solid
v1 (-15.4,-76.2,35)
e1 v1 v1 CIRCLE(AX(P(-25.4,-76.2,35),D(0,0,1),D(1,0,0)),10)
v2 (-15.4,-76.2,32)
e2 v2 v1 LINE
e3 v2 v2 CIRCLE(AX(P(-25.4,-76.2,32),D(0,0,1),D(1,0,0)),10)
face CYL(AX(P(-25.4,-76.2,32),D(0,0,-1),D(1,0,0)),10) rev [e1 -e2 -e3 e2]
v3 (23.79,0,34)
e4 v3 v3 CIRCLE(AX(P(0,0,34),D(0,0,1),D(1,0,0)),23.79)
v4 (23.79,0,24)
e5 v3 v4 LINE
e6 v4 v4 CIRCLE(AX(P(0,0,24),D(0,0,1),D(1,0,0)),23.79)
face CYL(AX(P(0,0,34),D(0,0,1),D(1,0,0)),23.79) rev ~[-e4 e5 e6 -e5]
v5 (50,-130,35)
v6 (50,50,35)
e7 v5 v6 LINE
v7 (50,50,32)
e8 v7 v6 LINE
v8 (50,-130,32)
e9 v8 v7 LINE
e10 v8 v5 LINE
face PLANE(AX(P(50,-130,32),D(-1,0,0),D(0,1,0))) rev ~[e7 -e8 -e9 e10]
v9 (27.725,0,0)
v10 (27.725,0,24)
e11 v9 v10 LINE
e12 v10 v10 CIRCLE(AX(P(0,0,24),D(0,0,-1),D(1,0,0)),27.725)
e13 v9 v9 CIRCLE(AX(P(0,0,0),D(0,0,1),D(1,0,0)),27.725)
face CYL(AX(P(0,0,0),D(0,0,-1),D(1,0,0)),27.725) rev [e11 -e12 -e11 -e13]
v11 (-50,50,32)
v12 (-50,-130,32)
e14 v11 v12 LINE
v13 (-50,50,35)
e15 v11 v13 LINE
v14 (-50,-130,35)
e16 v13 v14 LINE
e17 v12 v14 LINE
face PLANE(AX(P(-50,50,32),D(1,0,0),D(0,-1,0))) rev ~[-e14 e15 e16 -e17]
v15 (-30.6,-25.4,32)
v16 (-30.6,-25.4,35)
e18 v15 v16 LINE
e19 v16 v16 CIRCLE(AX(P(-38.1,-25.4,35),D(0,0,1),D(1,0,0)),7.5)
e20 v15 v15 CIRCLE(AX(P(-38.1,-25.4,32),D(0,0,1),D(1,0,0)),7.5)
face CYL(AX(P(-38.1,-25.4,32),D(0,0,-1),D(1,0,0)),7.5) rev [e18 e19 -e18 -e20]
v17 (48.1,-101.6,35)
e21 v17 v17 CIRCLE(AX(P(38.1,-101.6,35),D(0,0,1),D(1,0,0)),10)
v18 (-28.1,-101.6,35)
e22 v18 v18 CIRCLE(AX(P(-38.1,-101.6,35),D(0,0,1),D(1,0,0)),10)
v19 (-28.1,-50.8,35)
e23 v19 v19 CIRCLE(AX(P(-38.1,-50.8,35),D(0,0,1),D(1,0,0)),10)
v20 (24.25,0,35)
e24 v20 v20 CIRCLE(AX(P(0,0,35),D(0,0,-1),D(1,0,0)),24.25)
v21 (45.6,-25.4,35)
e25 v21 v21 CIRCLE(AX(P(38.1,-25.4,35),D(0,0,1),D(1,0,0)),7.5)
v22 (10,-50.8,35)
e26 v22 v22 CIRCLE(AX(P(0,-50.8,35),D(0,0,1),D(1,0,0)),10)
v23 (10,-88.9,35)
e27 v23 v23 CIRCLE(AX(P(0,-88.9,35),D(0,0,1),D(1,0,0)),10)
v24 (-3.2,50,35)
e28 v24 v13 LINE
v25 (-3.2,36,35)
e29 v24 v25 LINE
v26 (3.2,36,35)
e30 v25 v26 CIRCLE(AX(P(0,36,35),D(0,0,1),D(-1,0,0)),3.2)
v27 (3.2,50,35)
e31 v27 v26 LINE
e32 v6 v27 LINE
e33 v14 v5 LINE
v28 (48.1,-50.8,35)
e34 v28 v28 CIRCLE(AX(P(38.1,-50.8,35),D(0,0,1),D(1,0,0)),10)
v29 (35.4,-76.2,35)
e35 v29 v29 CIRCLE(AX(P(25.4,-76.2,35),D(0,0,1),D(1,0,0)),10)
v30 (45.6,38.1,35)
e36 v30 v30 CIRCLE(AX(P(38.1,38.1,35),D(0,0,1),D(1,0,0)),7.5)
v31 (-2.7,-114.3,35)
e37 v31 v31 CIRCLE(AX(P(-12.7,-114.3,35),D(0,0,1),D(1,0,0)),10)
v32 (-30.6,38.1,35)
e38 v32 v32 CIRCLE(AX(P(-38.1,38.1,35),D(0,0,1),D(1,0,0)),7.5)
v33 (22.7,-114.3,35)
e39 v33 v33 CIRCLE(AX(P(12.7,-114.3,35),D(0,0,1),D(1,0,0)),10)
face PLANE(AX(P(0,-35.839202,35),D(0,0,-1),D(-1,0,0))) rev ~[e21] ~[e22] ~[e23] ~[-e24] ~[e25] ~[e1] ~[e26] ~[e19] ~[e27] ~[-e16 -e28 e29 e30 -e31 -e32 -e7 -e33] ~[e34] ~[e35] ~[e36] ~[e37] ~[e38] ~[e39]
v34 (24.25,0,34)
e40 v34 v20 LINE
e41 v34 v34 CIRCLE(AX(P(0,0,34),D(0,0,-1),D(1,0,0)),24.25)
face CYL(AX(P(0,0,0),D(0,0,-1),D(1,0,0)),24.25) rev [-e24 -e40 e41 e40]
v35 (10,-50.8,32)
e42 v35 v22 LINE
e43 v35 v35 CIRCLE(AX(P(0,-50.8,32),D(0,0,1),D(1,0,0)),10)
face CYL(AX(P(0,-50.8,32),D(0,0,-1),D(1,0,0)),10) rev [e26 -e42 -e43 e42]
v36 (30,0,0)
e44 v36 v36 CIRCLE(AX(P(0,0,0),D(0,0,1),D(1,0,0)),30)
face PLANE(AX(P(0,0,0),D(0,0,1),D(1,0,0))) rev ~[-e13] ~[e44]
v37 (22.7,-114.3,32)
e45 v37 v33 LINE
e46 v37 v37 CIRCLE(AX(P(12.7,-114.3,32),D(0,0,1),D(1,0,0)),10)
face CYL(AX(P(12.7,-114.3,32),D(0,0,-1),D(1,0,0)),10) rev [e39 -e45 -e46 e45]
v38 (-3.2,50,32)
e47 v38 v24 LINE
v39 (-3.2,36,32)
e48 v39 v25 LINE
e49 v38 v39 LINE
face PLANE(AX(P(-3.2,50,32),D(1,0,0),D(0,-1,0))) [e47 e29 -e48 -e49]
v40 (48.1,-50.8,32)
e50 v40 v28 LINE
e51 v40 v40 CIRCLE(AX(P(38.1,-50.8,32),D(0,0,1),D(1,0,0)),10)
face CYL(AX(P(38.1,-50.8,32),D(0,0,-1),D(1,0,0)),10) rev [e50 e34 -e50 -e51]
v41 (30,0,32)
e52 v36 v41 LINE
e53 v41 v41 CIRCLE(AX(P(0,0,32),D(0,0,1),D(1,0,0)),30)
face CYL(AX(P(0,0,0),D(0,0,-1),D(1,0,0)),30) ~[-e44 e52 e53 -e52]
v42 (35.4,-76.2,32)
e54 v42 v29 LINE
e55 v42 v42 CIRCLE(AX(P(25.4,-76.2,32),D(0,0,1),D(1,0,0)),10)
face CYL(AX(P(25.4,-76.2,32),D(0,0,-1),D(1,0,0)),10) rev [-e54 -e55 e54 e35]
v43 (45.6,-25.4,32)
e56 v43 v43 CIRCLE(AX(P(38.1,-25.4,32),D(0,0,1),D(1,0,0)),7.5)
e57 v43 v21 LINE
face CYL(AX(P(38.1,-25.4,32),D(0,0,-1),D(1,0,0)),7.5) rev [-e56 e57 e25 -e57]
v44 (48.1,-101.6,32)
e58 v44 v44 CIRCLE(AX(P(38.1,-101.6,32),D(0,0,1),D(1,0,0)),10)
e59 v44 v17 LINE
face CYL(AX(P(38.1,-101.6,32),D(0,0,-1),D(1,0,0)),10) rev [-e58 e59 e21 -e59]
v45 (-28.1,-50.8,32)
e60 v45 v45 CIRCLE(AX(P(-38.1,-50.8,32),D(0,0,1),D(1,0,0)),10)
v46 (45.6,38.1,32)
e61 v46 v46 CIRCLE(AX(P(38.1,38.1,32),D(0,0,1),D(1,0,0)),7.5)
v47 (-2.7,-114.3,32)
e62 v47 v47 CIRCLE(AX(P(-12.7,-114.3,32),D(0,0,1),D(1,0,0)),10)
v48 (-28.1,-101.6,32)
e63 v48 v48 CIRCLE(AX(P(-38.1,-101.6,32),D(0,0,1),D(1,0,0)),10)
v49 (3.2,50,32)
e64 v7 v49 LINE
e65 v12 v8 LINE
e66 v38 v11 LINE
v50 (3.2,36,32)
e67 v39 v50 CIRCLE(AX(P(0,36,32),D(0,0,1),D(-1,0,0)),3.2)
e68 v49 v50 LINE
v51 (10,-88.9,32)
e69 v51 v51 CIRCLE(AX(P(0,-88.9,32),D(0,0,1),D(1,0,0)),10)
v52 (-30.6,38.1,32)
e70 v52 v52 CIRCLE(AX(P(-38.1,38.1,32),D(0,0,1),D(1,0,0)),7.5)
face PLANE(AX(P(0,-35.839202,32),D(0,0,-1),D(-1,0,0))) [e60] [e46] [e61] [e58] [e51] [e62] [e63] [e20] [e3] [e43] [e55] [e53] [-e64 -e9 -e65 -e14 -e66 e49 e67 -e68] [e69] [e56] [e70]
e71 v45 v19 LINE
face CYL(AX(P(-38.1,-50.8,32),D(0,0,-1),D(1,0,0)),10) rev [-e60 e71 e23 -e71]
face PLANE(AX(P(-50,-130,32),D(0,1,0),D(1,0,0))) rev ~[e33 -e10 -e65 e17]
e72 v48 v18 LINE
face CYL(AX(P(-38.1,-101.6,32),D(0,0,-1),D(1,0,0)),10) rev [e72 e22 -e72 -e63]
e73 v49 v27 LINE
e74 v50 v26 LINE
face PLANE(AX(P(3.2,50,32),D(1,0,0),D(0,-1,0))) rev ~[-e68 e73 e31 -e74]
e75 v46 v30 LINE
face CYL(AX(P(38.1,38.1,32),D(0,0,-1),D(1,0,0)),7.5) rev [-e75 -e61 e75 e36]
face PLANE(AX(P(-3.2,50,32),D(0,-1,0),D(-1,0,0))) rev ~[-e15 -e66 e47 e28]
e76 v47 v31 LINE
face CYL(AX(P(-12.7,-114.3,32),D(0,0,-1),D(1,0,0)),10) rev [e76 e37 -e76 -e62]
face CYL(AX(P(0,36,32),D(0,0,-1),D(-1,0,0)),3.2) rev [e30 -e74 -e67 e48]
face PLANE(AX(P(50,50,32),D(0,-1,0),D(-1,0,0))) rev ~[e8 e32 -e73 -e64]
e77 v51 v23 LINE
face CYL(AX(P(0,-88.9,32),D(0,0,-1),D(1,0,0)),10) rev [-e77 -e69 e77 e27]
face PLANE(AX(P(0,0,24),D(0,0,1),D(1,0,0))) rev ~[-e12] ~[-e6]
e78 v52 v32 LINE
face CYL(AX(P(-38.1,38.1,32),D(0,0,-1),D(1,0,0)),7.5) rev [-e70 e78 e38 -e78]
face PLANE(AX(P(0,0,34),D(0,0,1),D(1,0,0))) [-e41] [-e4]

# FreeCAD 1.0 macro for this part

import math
import FreeCAD as App
import Part
import Sketcher

doc = App.newDocument("Part")
body = doc.addObject("PartDesign::Body", "Body")

# Sketch on XY plane
sketch1 = doc.addObject("Sketcher::SketchObject", "Sketch")
body.addObject(sketch1)
sketch1.AttachmentSupport = (doc.XY_Plane, [""])
sketch1.MapMode = "FlatFace"
sketch1.addGeometry([
    Part.Circle(App.Vector(0, 0, 0), App.Vector(0, 0, 1), 30),
    Part.Circle(App.Vector(0, 0, 0), App.Vector(0, 0, 1), 28),
], False)
sketch1.addConstraint([
    Sketcher.Constraint("Coincident", 0, 3, -1, 1),
    Sketcher.Constraint("Coincident", 1, 3, -1, 1),
    Sketcher.Constraint("Diameter", 0, 60.0),
    Sketcher.Constraint("Diameter", 1, 55.45),
])
pad1 = doc.addObject("PartDesign::Pad", "Pad")
body.addObject(pad1)
pad1.Profile = sketch1
pad1.Length = 32

# Sketch on XY plane
sketch2 = doc.addObject("Sketcher::SketchObject", "Sketch001")
body.addObject(sketch2)
sketch2.AttachmentSupport = (doc.XY_Plane, [""])
sketch2.MapMode = "FlatFace"
sketch2.AttachmentOffset = App.Placement(App.Vector(0, 0, 32), App.Rotation())
sketch2.addGeometry([
    Part.ArcOfCircle(Part.Circle(App.Vector(0, 36, 0), App.Vector(0, 0, 1), 3.2), math.radians(180), math.radians(360)),  # 0
    Part.LineSegment(App.Vector(-3.2, 36, 0), App.Vector(-3.2, 50, 0)),  # 1
    Part.LineSegment(App.Vector(-3.2, 50, 0), App.Vector(-50, 50, 0)),  # 2
    Part.LineSegment(App.Vector(-50, 50, 0), App.Vector(-50, -130, 0)),  # 3
    Part.LineSegment(App.Vector(-50, -130, 0), App.Vector(50, -130, 0)),  # 4
    Part.LineSegment(App.Vector(50, -130, 0), App.Vector(50, 50, 0)),  # 5
    Part.LineSegment(App.Vector(50, 50, 0), App.Vector(3.2, 50, 0)),  # 6
    Part.LineSegment(App.Vector(3.2, 50, 0), App.Vector(3.2, 36, 0)),  # 7
    Part.Circle(App.Vector(38.1, -101.6, 0), App.Vector(0, 0, 1), 10),  # 8
    Part.Circle(App.Vector(12.7, -114.3, 0), App.Vector(0, 0, 1), 10),  # 9
    Part.Circle(App.Vector(0, -88.9, 0), App.Vector(0, 0, 1), 10),  # 10
    Part.Circle(App.Vector(25.4, -76.2, 0), App.Vector(0, 0, 1), 10),  # 11
    Part.Circle(App.Vector(38.1, -50.8, 0), App.Vector(0, 0, 1), 10),  # 12
    Part.Circle(App.Vector(0, -50.8, 0), App.Vector(0, 0, 1), 10),  # 13
    Part.Circle(App.Vector(-12.7, -114.3, 0), App.Vector(0, 0, 1), 10),  # 14
    Part.Circle(App.Vector(-38.1, -101.6, 0), App.Vector(0, 0, 1), 10),  # 15
    Part.Circle(App.Vector(-25.4, -76.2, 0), App.Vector(0, 0, 1), 10),  # 16
    Part.Circle(App.Vector(-38.1, -50.8, 0), App.Vector(0, 0, 1), 10),  # 17
    Part.Circle(App.Vector(38.1, -25.4, 0), App.Vector(0, 0, 1), 7.5),  # 18
    Part.Circle(App.Vector(38.1, 38.1, 0), App.Vector(0, 0, 1), 7.5),  # 19
    Part.Circle(App.Vector(-38.1, -25.4, 0), App.Vector(0, 0, 1), 7.5),  # 20
    Part.Circle(App.Vector(-38.1, 38.1, 0), App.Vector(0, 0, 1), 7.5),  # 21
], False)
sketch2.addConstraint([
    Sketcher.Constraint("Tangent", 0, 1, 1, 1),
    Sketcher.Constraint("Coincident", 1, 2, 2, 1),
    Sketcher.Constraint("Coincident", 2, 2, 3, 1),
    Sketcher.Constraint("Coincident", 3, 2, 4, 1),
    Sketcher.Constraint("Coincident", 4, 2, 5, 1),
    Sketcher.Constraint("Coincident", 5, 2, 6, 1),
    Sketcher.Constraint("Coincident", 6, 2, 7, 1),
    Sketcher.Constraint("Tangent", 7, 2, 0, 2),
    Sketcher.Constraint("Vertical", 1),
    Sketcher.Constraint("Horizontal", 2),
    Sketcher.Constraint("Vertical", 3),
    Sketcher.Constraint("Horizontal", 4),
    Sketcher.Constraint("Vertical", 5),
    Sketcher.Constraint("Horizontal", 6),
    Sketcher.Constraint("Vertical", 7),
    Sketcher.Constraint("Equal", 8, 9),
    Sketcher.Constraint("Equal", 9, 10),
    Sketcher.Constraint("Equal", 10, 11),
    Sketcher.Constraint("Equal", 11, 12),
    Sketcher.Constraint("Equal", 12, 13),
    Sketcher.Constraint("Equal", 13, 14),
    Sketcher.Constraint("Equal", 14, 15),
    Sketcher.Constraint("Equal", 15, 16),
    Sketcher.Constraint("Equal", 16, 17),
    Sketcher.Constraint("Equal", 18, 19),
    Sketcher.Constraint("Equal", 19, 20),
    Sketcher.Constraint("Equal", 20, 21),
    Sketcher.Constraint("Symmetric", 9, 3, 14, 3, -2),
    Sketcher.Constraint("Symmetric", 8, 3, 15, 3, -2),
    Sketcher.Constraint("Symmetric", 11, 3, 16, 3, -2),
    Sketcher.Constraint("Symmetric", 12, 3, 17, 3, -2),
    Sketcher.Constraint("Symmetric", 18, 3, 20, 3, -2),
    Sketcher.Constraint("Symmetric", 19, 3, 21, 3, -2),
    Sketcher.Constraint("Symmetric", 2, 2, 5, 2, -2),
    Sketcher.Constraint("PointOnObject", 0, 3, -2),
    Sketcher.Constraint("PointOnObject", 10, 3, -2),
    Sketcher.Constraint("PointOnObject", 13, 3, -2),
    Sketcher.Constraint("Horizontal", 12, 3, 13, 3),
    Sketcher.Constraint("Vertical", 8, 3, 12, 3),
    Sketcher.Constraint("Vertical", 12, 3, 18, 3),
    Sketcher.Constraint("Vertical", 18, 3, 19, 3),
    Sketcher.Constraint("Diameter", 8, 20.0),
    Sketcher.Constraint("Diameter", 18, 15.0),
    Sketcher.Constraint("Radius", 0, 3.2),
    Sketcher.Constraint("DistanceX", 4, 1, 4, 2, 100.0),
    Sketcher.Constraint("DistanceY", 1, 1, 1, 2, 14.0),
    Sketcher.Constraint("DistanceY", 3, 2, 3, 1, 180.0),
    Sketcher.Constraint("DistanceY", -1, 1, 0, 3, 36.0),
    Sketcher.Constraint("DistanceX", -1, 1, 8, 3, 38.1),
    Sketcher.Constraint("DistanceY", 8, 3, -1, 1, 101.6),
    Sketcher.Constraint("DistanceX", -1, 1, 9, 3, 12.7),
    Sketcher.Constraint("DistanceY", 9, 3, -1, 1, 114.3),
    Sketcher.Constraint("DistanceY", 10, 3, -1, 1, 88.9),
    Sketcher.Constraint("DistanceX", -1, 1, 11, 3, 25.4),
    Sketcher.Constraint("DistanceY", 11, 3, -1, 1, 76.2),
    Sketcher.Constraint("DistanceY", 12, 3, -1, 1, 50.8),
    Sketcher.Constraint("DistanceY", 18, 3, -1, 1, 25.4),
    Sketcher.Constraint("DistanceY", -1, 1, 19, 3, 38.1),
])
pad2 = doc.addObject("PartDesign::Pad", "Pad001")
body.addObject(pad2)
pad2.Profile = sketch2
pad2.Length = 3

# Sketch on XY plane
sketch3 = doc.addObject("Sketcher::SketchObject", "Sketch002")
body.addObject(sketch3)
sketch3.AttachmentSupport = (doc.XY_Plane, [""])
sketch3.MapMode = "FlatFace"
sketch3.addGeometry(Part.Circle(App.Vector(0, 0, 0), App.Vector(0, 0, 1), 24), False)
sketch3.addConstraint([
    Sketcher.Constraint("Coincident", 0, 3, -1, 1),
    Sketcher.Constraint("Diameter", 0, 48.5),
])
pocket1 = doc.addObject("PartDesign::Pocket", "Pocket")
body.addObject(pocket1)
pocket1.Profile = sketch3
pocket1.Type = "ThroughAll"
pocket1.Reversed = True

# Sketch on XY plane
sketch4 = doc.addObject("Sketcher::SketchObject", "Sketch003")
body.addObject(sketch4)
sketch4.AttachmentSupport = (doc.XY_Plane, [""])
sketch4.MapMode = "FlatFace"
sketch4.AttachmentOffset = App.Placement(App.Vector(0, 0, 34), App.Rotation())
sketch4.addGeometry([
    Part.Circle(App.Vector(0, 0, 0), App.Vector(0, 0, 1), 30),
    Part.Circle(App.Vector(0, 0, 0), App.Vector(0, 0, 1), 24),
], False)
sketch4.addConstraint([
    Sketcher.Constraint("Coincident", 0, 3, -1, 1),
    Sketcher.Constraint("Coincident", 1, 3, -1, 1),
    Sketcher.Constraint("Diameter", 0, 60.0),
    Sketcher.Constraint("Diameter", 1, 47.58),
])
pad3 = doc.addObject("PartDesign::Pad", "Pad002")
body.addObject(pad3)
pad3.Profile = sketch4
pad3.Length = 10
pad3.Reversed = True

doc.recompute()
